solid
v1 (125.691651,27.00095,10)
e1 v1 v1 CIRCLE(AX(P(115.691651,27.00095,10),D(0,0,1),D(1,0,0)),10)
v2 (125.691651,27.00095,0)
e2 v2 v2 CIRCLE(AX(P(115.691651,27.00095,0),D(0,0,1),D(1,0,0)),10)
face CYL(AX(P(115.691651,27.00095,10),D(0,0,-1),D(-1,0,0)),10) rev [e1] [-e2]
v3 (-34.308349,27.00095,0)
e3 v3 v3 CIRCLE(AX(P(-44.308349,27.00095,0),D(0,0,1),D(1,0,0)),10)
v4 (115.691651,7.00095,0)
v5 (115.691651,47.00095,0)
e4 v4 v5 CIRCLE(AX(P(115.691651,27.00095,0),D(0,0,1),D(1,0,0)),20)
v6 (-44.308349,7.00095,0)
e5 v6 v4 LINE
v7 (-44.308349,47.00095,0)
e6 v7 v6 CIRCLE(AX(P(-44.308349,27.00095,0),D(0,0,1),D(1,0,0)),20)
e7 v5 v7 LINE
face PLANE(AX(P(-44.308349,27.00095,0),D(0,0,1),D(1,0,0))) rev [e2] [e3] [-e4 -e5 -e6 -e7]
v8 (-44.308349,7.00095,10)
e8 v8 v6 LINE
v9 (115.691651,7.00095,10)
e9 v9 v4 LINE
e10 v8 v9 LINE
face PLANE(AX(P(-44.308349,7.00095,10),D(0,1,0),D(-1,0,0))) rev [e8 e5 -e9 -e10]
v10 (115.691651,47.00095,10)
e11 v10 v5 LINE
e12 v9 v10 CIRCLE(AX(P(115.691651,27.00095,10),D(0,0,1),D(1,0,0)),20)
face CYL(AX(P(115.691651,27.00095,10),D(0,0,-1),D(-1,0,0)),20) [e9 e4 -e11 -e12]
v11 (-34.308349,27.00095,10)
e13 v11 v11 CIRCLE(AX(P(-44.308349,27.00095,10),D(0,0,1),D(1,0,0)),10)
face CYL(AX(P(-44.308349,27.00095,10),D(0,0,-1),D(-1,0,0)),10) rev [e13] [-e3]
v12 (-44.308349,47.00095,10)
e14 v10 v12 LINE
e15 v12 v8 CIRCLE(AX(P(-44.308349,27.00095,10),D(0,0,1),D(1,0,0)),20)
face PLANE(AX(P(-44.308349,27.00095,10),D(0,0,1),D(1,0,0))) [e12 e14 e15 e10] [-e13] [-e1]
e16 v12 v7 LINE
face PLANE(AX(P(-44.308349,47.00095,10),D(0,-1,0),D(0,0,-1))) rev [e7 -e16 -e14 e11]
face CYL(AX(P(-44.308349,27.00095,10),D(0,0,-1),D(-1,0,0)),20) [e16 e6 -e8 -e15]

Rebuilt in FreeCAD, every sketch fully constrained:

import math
import FreeCAD as App
import Part
import Sketcher

V = App.Vector

doc = App.newDocument("Part")
body = doc.addObject("PartDesign::Body", "Body")

sketch1 = body.newObject("Sketcher::SketchObject", "Sketch")
sketch1.AttachmentSupport = (doc.getObject("XY_Plane"), [""])
sketch1.MapMode = "FlatFace"
sketch1.addGeometry(Part.LineSegment(V(115.691651, 47.00095, 0), V(-44.308349, 47.00095, 0)), False)
sketch1.addGeometry(Part.ArcOfCircle(Part.Circle(V(-44.308349, 27.00095, 0), V(0, 0, 1), 20), math.radians(90), math.radians(270)), False)
sketch1.addGeometry(Part.LineSegment(V(-44.308349, 7.00095, 0), V(115.691651, 7.00095, 0)), False)
sketch1.addGeometry(Part.ArcOfCircle(Part.Circle(V(115.691651, 27.00095, 0), V(0, 0, 1), 20), math.radians(-90), math.radians(90)), False)
sketch1.addGeometry(Part.Circle(V(115.691651, 27.00095, 0), V(0, 0, 1), 10), False)
sketch1.addGeometry(Part.Circle(V(-44.308349, 27.00095, 0), V(0, 0, 1), 10), False)
sketch1.addConstraint(Sketcher.Constraint("Tangent", 0, 2, 1, 1))
sketch1.addConstraint(Sketcher.Constraint("Tangent", 1, 2, 2, 1))
sketch1.addConstraint(Sketcher.Constraint("Tangent", 2, 2, 3, 1))
sketch1.addConstraint(Sketcher.Constraint("Tangent", 3, 2, 0, 1))
sketch1.addConstraint(Sketcher.Constraint("Horizontal", 0))
sketch1.addConstraint(Sketcher.Constraint("Horizontal", 2))
sketch1.addConstraint(Sketcher.Constraint("Coincident", 4, 3, 3, 3))
sketch1.addConstraint(Sketcher.Constraint("Coincident", 5, 3, 1, 3))
sketch1.addConstraint(Sketcher.Constraint("Equal", 4, 5))
sketch1.addConstraint(Sketcher.Constraint("Diameter", 4, 20.0))
sketch1.addConstraint(Sketcher.Constraint("Radius", 1, 20.0))
sketch1.addConstraint(Sketcher.Constraint("DistanceX", 0, 2, 0, 1, 160.0))
sketch1.addConstraint(Sketcher.Constraint("DistanceX", 1, 3, -1, 1, 44.308349))
sketch1.addConstraint(Sketcher.Constraint("DistanceY", -1, 1, 1, 3, 27.00095))
pad1 = body.newObject("PartDesign::Pad", "Pad")
pad1.Profile = sketch1
pad1.Length = 10

doc.recompute()
